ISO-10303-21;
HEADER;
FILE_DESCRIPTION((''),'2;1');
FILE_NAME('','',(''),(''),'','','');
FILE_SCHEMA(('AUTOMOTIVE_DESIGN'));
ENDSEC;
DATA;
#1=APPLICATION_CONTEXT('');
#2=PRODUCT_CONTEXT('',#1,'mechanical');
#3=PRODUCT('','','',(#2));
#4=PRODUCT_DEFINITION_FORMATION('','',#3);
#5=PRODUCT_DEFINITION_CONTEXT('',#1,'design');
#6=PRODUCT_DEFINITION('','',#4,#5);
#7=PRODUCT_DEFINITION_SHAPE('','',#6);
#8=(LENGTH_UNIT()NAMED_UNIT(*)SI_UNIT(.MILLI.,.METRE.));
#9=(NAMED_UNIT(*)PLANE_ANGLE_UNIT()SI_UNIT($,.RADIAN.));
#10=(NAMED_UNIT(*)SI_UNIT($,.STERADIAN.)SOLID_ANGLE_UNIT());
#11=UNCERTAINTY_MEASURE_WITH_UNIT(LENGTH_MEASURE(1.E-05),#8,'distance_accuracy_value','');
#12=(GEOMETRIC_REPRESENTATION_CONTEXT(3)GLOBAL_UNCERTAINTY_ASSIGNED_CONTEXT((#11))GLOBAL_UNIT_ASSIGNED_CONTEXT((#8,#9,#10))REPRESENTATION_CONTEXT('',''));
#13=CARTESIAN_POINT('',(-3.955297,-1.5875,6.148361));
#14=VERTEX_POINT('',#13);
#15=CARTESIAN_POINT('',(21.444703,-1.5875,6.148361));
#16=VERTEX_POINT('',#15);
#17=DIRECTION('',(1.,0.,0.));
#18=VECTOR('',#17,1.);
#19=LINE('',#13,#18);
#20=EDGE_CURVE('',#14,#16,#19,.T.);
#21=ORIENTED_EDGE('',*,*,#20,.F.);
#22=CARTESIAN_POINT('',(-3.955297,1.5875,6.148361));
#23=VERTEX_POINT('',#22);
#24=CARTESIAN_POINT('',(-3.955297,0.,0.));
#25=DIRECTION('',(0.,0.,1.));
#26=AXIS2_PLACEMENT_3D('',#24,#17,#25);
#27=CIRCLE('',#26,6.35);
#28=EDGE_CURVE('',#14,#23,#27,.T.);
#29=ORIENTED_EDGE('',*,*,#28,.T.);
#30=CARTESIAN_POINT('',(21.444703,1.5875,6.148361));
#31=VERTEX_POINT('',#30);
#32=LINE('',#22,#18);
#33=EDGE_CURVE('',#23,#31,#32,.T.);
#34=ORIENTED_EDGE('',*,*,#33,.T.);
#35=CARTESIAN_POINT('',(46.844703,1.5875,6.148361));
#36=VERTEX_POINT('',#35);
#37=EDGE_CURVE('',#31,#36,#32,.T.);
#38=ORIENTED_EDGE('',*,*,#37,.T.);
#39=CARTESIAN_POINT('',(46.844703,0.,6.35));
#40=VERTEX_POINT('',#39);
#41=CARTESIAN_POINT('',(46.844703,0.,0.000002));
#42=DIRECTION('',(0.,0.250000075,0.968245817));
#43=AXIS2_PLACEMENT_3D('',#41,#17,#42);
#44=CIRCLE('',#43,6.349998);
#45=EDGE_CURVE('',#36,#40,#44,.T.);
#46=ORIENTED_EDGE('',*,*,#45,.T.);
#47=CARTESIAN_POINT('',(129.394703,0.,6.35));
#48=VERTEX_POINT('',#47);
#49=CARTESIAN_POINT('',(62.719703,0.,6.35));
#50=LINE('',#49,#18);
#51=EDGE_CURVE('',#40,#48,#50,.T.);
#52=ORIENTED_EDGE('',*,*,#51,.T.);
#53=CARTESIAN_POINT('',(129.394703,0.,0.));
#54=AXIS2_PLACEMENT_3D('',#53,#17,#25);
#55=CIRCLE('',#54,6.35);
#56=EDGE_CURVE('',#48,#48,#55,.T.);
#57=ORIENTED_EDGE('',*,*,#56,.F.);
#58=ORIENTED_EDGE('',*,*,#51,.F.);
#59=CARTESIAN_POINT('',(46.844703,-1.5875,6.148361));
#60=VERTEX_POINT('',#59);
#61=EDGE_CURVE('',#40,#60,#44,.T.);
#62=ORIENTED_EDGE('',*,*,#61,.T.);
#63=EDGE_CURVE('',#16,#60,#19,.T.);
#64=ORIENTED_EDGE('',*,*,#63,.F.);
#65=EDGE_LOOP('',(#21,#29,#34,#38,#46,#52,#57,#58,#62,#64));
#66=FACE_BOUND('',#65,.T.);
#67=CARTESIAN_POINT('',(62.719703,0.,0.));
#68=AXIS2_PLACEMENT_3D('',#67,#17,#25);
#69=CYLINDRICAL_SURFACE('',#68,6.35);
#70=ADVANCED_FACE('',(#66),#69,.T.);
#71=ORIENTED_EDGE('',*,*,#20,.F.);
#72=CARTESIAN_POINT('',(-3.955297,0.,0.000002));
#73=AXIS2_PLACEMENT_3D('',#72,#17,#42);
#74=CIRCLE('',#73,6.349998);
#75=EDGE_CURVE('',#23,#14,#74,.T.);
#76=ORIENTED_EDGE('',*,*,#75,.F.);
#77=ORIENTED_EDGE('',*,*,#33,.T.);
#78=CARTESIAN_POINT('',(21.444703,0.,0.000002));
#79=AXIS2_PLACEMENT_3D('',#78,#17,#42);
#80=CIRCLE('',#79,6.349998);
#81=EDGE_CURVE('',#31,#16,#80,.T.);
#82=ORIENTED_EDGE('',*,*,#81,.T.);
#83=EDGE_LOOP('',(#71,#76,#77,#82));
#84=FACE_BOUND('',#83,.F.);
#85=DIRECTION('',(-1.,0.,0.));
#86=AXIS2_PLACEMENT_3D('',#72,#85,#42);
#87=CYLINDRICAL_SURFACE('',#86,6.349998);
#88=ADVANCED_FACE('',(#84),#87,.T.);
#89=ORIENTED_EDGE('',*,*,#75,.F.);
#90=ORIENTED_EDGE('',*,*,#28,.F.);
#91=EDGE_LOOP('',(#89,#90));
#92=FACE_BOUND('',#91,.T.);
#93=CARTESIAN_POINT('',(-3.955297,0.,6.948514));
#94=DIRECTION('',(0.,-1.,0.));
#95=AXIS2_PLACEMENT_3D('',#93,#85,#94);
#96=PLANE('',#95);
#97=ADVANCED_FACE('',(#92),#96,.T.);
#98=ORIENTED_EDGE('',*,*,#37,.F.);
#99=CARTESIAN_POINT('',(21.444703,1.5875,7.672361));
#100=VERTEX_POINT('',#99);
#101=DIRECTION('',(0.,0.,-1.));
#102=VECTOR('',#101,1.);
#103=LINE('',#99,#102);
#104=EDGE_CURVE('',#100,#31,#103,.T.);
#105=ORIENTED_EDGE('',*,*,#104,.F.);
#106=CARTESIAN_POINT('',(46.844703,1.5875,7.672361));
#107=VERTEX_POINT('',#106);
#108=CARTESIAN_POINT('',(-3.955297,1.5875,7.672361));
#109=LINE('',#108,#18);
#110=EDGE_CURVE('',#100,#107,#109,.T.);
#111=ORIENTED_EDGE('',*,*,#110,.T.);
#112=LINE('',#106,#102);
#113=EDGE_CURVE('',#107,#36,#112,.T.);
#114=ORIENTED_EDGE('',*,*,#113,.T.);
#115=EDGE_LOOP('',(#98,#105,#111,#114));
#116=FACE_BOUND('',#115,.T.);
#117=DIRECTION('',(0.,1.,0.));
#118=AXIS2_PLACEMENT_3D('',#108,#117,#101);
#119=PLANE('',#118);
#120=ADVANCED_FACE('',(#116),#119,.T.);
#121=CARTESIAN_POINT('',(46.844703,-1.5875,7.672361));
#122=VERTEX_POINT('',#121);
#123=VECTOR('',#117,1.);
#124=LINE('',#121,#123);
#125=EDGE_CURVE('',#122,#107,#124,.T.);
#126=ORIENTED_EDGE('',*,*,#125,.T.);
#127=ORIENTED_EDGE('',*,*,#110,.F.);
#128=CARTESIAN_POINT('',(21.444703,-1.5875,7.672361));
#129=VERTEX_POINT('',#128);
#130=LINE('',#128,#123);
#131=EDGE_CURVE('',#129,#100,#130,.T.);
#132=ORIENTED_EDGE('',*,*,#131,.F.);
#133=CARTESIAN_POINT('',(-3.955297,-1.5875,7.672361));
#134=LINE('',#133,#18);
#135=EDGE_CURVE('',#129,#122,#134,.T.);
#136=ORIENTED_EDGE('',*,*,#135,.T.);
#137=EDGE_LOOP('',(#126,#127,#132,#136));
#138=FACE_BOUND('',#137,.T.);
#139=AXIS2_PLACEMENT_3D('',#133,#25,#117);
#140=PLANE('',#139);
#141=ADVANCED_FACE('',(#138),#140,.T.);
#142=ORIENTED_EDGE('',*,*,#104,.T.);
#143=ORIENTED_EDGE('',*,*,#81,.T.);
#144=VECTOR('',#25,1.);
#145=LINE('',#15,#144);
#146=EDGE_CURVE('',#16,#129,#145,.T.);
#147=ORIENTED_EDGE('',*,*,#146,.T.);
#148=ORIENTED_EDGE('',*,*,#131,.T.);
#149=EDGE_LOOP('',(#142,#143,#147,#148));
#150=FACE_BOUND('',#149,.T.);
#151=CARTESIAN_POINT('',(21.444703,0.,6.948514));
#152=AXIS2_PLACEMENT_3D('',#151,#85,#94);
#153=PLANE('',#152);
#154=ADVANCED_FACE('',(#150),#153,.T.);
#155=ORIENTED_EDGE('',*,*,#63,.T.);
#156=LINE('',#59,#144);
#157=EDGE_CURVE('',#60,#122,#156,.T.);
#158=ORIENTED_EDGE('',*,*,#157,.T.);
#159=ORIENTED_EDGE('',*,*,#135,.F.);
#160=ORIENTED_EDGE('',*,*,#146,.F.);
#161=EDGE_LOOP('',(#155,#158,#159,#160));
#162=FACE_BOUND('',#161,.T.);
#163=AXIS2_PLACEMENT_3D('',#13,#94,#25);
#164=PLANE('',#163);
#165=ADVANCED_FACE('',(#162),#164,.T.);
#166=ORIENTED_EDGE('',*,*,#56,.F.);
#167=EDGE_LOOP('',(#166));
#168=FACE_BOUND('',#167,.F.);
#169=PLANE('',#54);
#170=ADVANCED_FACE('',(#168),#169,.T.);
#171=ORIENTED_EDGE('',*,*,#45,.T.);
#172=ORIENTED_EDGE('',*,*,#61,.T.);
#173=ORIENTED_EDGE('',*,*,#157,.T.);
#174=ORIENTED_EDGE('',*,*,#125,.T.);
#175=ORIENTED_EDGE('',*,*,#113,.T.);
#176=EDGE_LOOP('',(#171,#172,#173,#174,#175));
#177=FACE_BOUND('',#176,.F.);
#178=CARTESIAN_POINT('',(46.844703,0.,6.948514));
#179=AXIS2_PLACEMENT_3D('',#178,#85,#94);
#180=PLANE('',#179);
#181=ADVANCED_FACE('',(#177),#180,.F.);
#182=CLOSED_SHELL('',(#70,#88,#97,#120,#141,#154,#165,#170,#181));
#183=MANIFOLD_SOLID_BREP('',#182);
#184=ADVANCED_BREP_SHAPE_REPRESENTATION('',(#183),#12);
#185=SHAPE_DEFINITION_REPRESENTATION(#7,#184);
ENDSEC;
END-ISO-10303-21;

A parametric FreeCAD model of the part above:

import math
import FreeCAD as App
import Part
import Sketcher
Q = App.Units.Quantity


def add_polygon(sketch, points):
    """Adds a closed chain of lines whose ends are joined by coincident constraints."""
    first, n = sketch.GeometryCount, len(points)
    for a, b in zip(points, points[1:] + points[:1]):
        sketch.addGeometry(Part.LineSegment(App.Vector(*a, 0), App.Vector(*b, 0)), False)
    for i in range(n):
        sketch.addConstraint(Sketcher.Constraint("Coincident", first + i, 2, first + (i + 1) % n, 1))

doc = App.newDocument("Part")
params = doc.addObject("Spreadsheet::Sheet", "Params")
for row, (alias, value) in enumerate([
    ("sketch1_width", "5.25 in"),
    ("sketch1_height", "0.25 in"),
    ("revolution_angle", "360 deg"),
    ("sketch2_radius", "0.2499999 in"),
    ("sketch2_height", "0.06 in"),
    ("sketch2_width", "0.125 in"),
    ("pad1_length", "2 in"),
    ("sketch3_radius", "0.2499999 in"),
    ("sketch3_height", "0.06 in"),
    ("sketch3_width", "0.125 in"),
    ("pocket1_length", "1 in"),
], start=1):
    params.set(f"A{row}", alias)
    params.set(f"B{row}", "=" + value)
    params.setAlias(f"B{row}", alias)

body = doc.addObject("PartDesign::Body", "Body")

# Sketch on XZ plane
sketch1 = doc.addObject("Sketcher::SketchObject", "Sketch")
body.addObject(sketch1)
sketch1.AttachmentSupport = (doc.XZ_Plane, [""])
sketch1.MapMode = "FlatFace"
add_polygon(sketch1, [(-3.955297, 6.35), (-3.955297, 0), (129.394703, 0), (129.394703, 6.35)])  # lines 0-3
sketch1.addConstraint([
    Sketcher.Constraint("Vertical", 0),
    Sketcher.Constraint("Horizontal", 1),
    Sketcher.Constraint("Vertical", 2),
    Sketcher.Constraint("Horizontal", 3),
    Sketcher.Constraint("PointOnObject", 0, 2, -1),
    Sketcher.Constraint("DistanceX", 1, 1, 1, 2, Q("5.25 in")),
    Sketcher.Constraint("DistanceY", 0, 2, 0, 1, Q("0.25 in")),
    Sketcher.Constraint("DistanceX", 0, 2, -1, 1, 3.955297),
])
sketch1.setExpression("Constraints[9]", "Params.sketch1_width")
sketch1.setExpression("Constraints[10]", "Params.sketch1_height")
revolution = doc.addObject("PartDesign::Revolution", "Revolution")
body.addObject(revolution)
revolution.Profile = sketch1
revolution.ReferenceAxis = (sketch1, ["H_Axis"])
revolution.setExpression("Angle", "Params.revolution_angle")

# Sketch on YZ plane
sketch2 = doc.addObject("Sketcher::SketchObject", "Sketch001")
body.addObject(sketch2)
sketch2.AttachmentSupport = (doc.YZ_Plane, [""])
sketch2.MapMode = "FlatFace"
sketch2.AttachmentOffset = App.Placement(App.Vector(0, 0, -3.955297), App.Rotation())
sketch2.addGeometry([
    Part.LineSegment(App.Vector(1.5875, 7.672361, 0), App.Vector(1.5875, 6.148361, 0)),
    Part.ArcOfCircle(Part.Circle(App.Vector(0, 0.000002, 0), App.Vector(0, 0, 1), 6.349998), math.radians(75.522483), math.radians(104.477517)),
    Part.LineSegment(App.Vector(-1.5875, 6.148361, 0), App.Vector(-1.5875, 7.672361, 0)),
    Part.LineSegment(App.Vector(-1.5875, 7.672361, 0), App.Vector(1.5875, 7.672361, 0)),
], False)
sketch2.addConstraint([
    Sketcher.Constraint("Coincident", 0, 2, 1, 1),
    Sketcher.Constraint("Coincident", 1, 2, 2, 1),
    Sketcher.Constraint("Coincident", 2, 2, 3, 1),
    Sketcher.Constraint("Coincident", 3, 2, 0, 1),
    Sketcher.Constraint("Vertical", 0),
    Sketcher.Constraint("Vertical", 2),
    Sketcher.Constraint("Horizontal", 3),
    Sketcher.Constraint("Coincident", 1, 3, -1, 1),
    Sketcher.Constraint("Horizontal", 0, 2, 1, 2),
    Sketcher.Constraint("Radius", 1, Q("0.2499999 in")),
    Sketcher.Constraint("DistanceY", 0, 2, 0, 1, Q("0.06 in")),
    Sketcher.Constraint("DistanceX", 3, 1, 3, 2, Q("0.125 in")),
])
sketch2.setExpression("Constraints[9]", "Params.sketch2_radius")
sketch2.setExpression("Constraints[10]", "Params.sketch2_height")
sketch2.setExpression("Constraints[11]", "Params.sketch2_width")
pad1 = doc.addObject("PartDesign::Pad", "Pad")
body.addObject(pad1)
pad1.Profile = sketch2
pad1.setExpression("Length", "Params.pad1_length")

# Sketch on YZ plane
sketch3 = doc.addObject("Sketcher::SketchObject", "Sketch002")
body.addObject(sketch3)
sketch3.AttachmentSupport = (doc.YZ_Plane, [""])
sketch3.MapMode = "FlatFace"
sketch3.AttachmentOffset = App.Placement(App.Vector(0, 0, -3.955297), App.Rotation())
sketch3.addGeometry([
    Part.ArcOfCircle(Part.Circle(App.Vector(0, 0.000002, 0), App.Vector(0, 0, 1), 6.349998), math.radians(75.522483), math.radians(104.477517)),
    Part.LineSegment(App.Vector(-1.5875, 6.148361, 0), App.Vector(-1.5875, 7.672361, 0)),
    Part.LineSegment(App.Vector(-1.5875, 7.672361, 0), App.Vector(1.5875, 7.672361, 0)),
    Part.LineSegment(App.Vector(1.5875, 7.672361, 0), App.Vector(1.5875, 6.148361, 0)),
], False)
sketch3.addConstraint([
    Sketcher.Constraint("Coincident", 0, 2, 1, 1),
    Sketcher.Constraint("Coincident", 1, 2, 2, 1),
    Sketcher.Constraint("Coincident", 2, 2, 3, 1),
    Sketcher.Constraint("Coincident", 3, 2, 0, 1),
    Sketcher.Constraint("Vertical", 1),
    Sketcher.Constraint("Horizontal", 2),
    Sketcher.Constraint("Vertical", 3),
    Sketcher.Constraint("Coincident", 0, 3, -1, 1),
    Sketcher.Constraint("Horizontal", 0, 2, 3, 2),
    Sketcher.Constraint("Radius", 0, Q("0.2499999 in")),
    Sketcher.Constraint("DistanceY", 1, 1, 1, 2, Q("0.06 in")),
    Sketcher.Constraint("DistanceX", 2, 1, 2, 2, Q("0.125 in")),
])
sketch3.setExpression("Constraints[9]", "Params.sketch3_radius")
sketch3.setExpression("Constraints[10]", "Params.sketch3_height")
sketch3.setExpression("Constraints[11]", "Params.sketch3_width")
pocket1 = doc.addObject("PartDesign::Pocket", "Pocket")
body.addObject(pocket1)
pocket1.Profile = sketch3
pocket1.setExpression("Length", "Params.pocket1_length")
pocket1.Reversed = True

doc.recompute()
